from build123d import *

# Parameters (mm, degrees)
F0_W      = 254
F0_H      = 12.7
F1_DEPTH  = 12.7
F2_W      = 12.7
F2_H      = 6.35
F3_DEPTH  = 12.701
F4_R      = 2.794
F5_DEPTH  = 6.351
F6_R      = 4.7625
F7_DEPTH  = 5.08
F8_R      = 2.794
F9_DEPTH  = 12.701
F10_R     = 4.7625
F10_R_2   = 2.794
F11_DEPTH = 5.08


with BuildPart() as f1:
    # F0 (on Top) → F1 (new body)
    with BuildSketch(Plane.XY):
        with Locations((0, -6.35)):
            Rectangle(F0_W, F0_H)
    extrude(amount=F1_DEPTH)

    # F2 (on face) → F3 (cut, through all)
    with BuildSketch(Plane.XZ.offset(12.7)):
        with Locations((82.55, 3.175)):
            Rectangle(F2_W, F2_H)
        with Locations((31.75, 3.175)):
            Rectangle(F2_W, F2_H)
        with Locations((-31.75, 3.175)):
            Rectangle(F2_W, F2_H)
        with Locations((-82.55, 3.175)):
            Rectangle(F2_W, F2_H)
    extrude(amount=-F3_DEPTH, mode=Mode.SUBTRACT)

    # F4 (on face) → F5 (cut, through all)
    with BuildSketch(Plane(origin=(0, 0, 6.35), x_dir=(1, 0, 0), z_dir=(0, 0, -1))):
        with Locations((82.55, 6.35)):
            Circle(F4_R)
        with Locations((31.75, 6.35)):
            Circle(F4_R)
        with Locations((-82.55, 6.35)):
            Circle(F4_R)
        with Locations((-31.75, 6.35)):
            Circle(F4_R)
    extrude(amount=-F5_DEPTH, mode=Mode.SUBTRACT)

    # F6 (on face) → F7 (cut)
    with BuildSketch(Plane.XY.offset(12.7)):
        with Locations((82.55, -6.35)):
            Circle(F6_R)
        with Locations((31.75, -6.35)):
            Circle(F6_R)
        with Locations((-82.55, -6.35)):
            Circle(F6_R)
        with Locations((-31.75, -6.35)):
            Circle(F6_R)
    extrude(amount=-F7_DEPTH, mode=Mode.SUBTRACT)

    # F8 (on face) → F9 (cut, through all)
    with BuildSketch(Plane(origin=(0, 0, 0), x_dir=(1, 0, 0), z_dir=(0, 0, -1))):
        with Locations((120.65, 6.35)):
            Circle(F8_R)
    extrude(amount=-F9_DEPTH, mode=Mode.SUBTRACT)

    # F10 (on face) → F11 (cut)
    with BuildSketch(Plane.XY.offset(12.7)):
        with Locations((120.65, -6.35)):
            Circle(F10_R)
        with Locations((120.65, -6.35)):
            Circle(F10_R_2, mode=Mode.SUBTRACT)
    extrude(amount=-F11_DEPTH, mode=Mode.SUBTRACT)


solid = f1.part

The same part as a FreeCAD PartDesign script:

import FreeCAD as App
import Part
import Sketcher
Q = App.Units.Quantity


def add_polygon(sketch, points):
    """Adds a closed chain of lines whose ends are joined by coincident constraints."""
    first, n = sketch.GeometryCount, len(points)
    for a, b in zip(points, points[1:] + points[:1]):
        sketch.addGeometry(Part.LineSegment(App.Vector(*a, 0), App.Vector(*b, 0)), False)
    for i in range(n):
        sketch.addConstraint(Sketcher.Constraint("Coincident", first + i, 2, first + (i + 1) % n, 1))

doc = App.newDocument("Part")
body = doc.addObject("PartDesign::Body", "Body")

# Sketch on XY plane
sketch1 = body.newObject("Sketcher::SketchObject", "Sketch")
sketch1.AttachmentSupport = (doc.getObject("XY_Plane"), [""])
sketch1.MapMode = "FlatFace"
add_polygon(sketch1, [(-127, 0), (-127, -13), (127, -13), (127, 0)])  # lines 0-3
sketch1.addConstraint([
    Sketcher.Constraint("Vertical", 0),
    Sketcher.Constraint("Horizontal", 1),
    Sketcher.Constraint("Vertical", 2),
    Sketcher.Constraint("Horizontal", 3),
    Sketcher.Constraint("Symmetric", 2, 2, 3, 2, -1, 1),
    Sketcher.Constraint("DistanceX", 1, 1, 1, 2, Q("10 in")),
    Sketcher.Constraint("DistanceY", 0, 2, 0, 1, Q("0.5 in")),
])
pad1 = body.newObject("PartDesign::Pad", "Pad")
pad1.Profile = sketch1
pad1.Length = Q("0.5 in")

# Sketch on XZ plane
sketch2 = body.newObject("Sketcher::SketchObject", "Sketch001")
sketch2.AttachmentSupport = (doc.getObject("XZ_Plane"), [""])
sketch2.MapMode = "FlatFace"
sketch2.AttachmentOffset = App.Placement(App.Vector(0, 0, 0.5 * 25.4), App.Rotation())
add_polygon(sketch2, [(76, 6), (76, 0), (89, 0), (89, 6)])  # lines 0-3
add_polygon(sketch2, [(25, 6), (25, 0), (38, 0), (38, 6)])  # lines 4-7
add_polygon(sketch2, [(-38, 6), (-38, 0), (-25, 0), (-25, 6)])  # lines 8-11
add_polygon(sketch2, [(-89, 6), (-89, 0), (-76, 0), (-76, 6)])  # lines 12-15
sketch2.addConstraint([
    Sketcher.Constraint("Vertical", 0),
    Sketcher.Constraint("Horizontal", 1),
    Sketcher.Constraint("Vertical", 2),
    Sketcher.Constraint("Horizontal", 3),
    Sketcher.Constraint("Vertical", 4),
    Sketcher.Constraint("Horizontal", 5),
    Sketcher.Constraint("Vertical", 6),
    Sketcher.Constraint("Horizontal", 7),
    Sketcher.Constraint("Vertical", 8),
    Sketcher.Constraint("Horizontal", 9),
    Sketcher.Constraint("Vertical", 10),
    Sketcher.Constraint("Horizontal", 11),
    Sketcher.Constraint("Vertical", 12),
    Sketcher.Constraint("Horizontal", 13),
    Sketcher.Constraint("Vertical", 14),
    Sketcher.Constraint("Horizontal", 15),
    Sketcher.Constraint("Symmetric", 5, 2, 8, 2, -1, 1),
    Sketcher.Constraint("Symmetric", 1, 2, 12, 2, -1, 1),
    Sketcher.Constraint("Symmetric", 4, 2, 9, 2, -2),
    Sketcher.Constraint("Symmetric", 0, 2, 13, 2, -2),
    Sketcher.Constraint("Horizontal", 3, 2, 6, 2),
    Sketcher.Constraint("Horizontal", 7, 2, 10, 2),
    Sketcher.Constraint("Horizontal", 11, 2, 14, 2),
    Sketcher.Constraint("Equal", 3, 5),
    Sketcher.Constraint("DistanceX", 1, 1, 1, 2, Q("0.5 in")),
    Sketcher.Constraint("DistanceX", -1, 1, 0, 2, Q("3 in")),
    Sketcher.Constraint("DistanceX", -1, 1, 4, 2, Q("1 in")),
    Sketcher.Constraint("DistanceY", 0, 2, 0, 1, Q("0.25 in")),
])
pocket1 = body.newObject("PartDesign::Pocket", "Pocket")
pocket1.Profile = sketch2
pocket1.Type = "ThroughAll"

# Sketch on XY plane
sketch3 = body.newObject("Sketcher::SketchObject", "Sketch002")
sketch3.AttachmentSupport = (doc.getObject("XY_Plane"), [""])
sketch3.MapMode = "FlatFace"
sketch3.AttachmentOffset = App.Placement(App.Vector(0, 0, 0.25 * 25.4), App.Rotation())
sketch3.addGeometry([
    Part.Circle(App.Vector(82.5, -6.3, 0), App.Vector(0, 0, 1), 2.8),
    Part.Circle(App.Vector(31.8, -6.3, 0), App.Vector(0, 0, 1), 2.8),
    Part.Circle(App.Vector(-82.5, -6.3, 0), App.Vector(0, 0, 1), 2.8),
    Part.Circle(App.Vector(-31.8, -6.3, 0), App.Vector(0, 0, 1), 2.8),
], False)
sketch3.addConstraint([
    Sketcher.Constraint("Equal", 0, 1),
    Sketcher.Constraint("Equal", 1, 2),
    Sketcher.Constraint("Equal", 2, 3),
    Sketcher.Constraint("Symmetric", 0, 3, 2, 3, -2),
    Sketcher.Constraint("Symmetric", 1, 3, 3, 3, -2),
    Sketcher.Constraint("Horizontal", 0, 3, 1, 3),
    Sketcher.Constraint("Diameter", 0, Q("0.22 in")),
    Sketcher.Constraint("DistanceX", 1, 3, 0, 3, Q("2 in")),
    Sketcher.Constraint("DistanceX", 2, 3, 1, 3, Q("4.5 in")),
    Sketcher.Constraint("DistanceY", 0, 3, -1, 1, Q("0.25 in")),
])
pocket2 = body.newObject("PartDesign::Pocket", "Pocket001")
pocket2.Profile = sketch3
pocket2.Type = "ThroughAll"
pocket2.Reversed = True

# Sketch on XY plane
sketch4 = body.newObject("Sketcher::SketchObject", "Sketch003")
sketch4.AttachmentSupport = (doc.getObject("XY_Plane"), [""])
sketch4.MapMode = "FlatFace"
sketch4.AttachmentOffset = App.Placement(App.Vector(0, 0, 0.5 * 25.4), App.Rotation())
sketch4.addGeometry([
    Part.Circle(App.Vector(82.5, -6.3, 0), App.Vector(0, 0, 1), 4.8),
    Part.Circle(App.Vector(31.8, -6.3, 0), App.Vector(0, 0, 1), 4.8),
    Part.Circle(App.Vector(-82.5, -6.3, 0), App.Vector(0, 0, 1), 4.8),
    Part.Circle(App.Vector(-31.8, -6.3, 0), App.Vector(0, 0, 1), 4.8),
], False)
sketch4.addConstraint([
    Sketcher.Constraint("Equal", 0, 1),
    Sketcher.Constraint("Equal", 1, 2),
    Sketcher.Constraint("Equal", 2, 3),
    Sketcher.Constraint("Symmetric", 0, 3, 2, 3, -2),
    Sketcher.Constraint("Symmetric", 1, 3, 3, 3, -2),
    Sketcher.Constraint("Horizontal", 0, 3, 1, 3),
    Sketcher.Constraint("Diameter", 0, Q("0.375 in")),
    Sketcher.Constraint("DistanceX", 1, 3, 0, 3, Q("2 in")),
    Sketcher.Constraint("DistanceX", 2, 3, 1, 3, Q("4.5 in")),
    Sketcher.Constraint("DistanceY", 0, 3, -1, 1, Q("0.25 in")),
])
pocket3 = body.newObject("PartDesign::Pocket", "Pocket002")
pocket3.Profile = sketch4
pocket3.Length = Q("0.2 in")

# Sketch on XY plane
sketch5 = body.newObject("Sketcher::SketchObject", "Sketch004")
sketch5.AttachmentSupport = (doc.getObject("XY_Plane"), [""])
sketch5.MapMode = "FlatFace"
sketch5.addGeometry(Part.Circle(App.Vector(120.7, -6.3, 0), App.Vector(0, 0, 1), 2.8), False)
sketch5.addConstraint([
    Sketcher.Constraint("Diameter", 0, Q("0.22 in")),
    Sketcher.Constraint("DistanceX", -1, 1, 0, 3, Q("4.75 in")),
    Sketcher.Constraint("DistanceY", 0, 3, -1, 1, Q("0.25 in")),
])
pocket4 = body.newObject("PartDesign::Pocket", "Pocket003")
pocket4.Profile = sketch5
pocket4.Type = "ThroughAll"
pocket4.Reversed = True

# Sketch on XY plane
sketch6 = body.newObject("Sketcher::SketchObject", "Sketch005")
sketch6.AttachmentSupport = (doc.getObject("XY_Plane"), [""])
sketch6.MapMode = "FlatFace"
sketch6.AttachmentOffset = App.Placement(App.Vector(0, 0, 0.5 * 25.4), App.Rotation())
sketch6.addGeometry([
    Part.Circle(App.Vector(120.7, -6.3, 0), App.Vector(0, 0, 1), 4.8),
    Part.Circle(App.Vector(120.7, -6.3, 0), App.Vector(0, 0, 1), 2.8),
], False)
sketch6.addConstraint([
    Sketcher.Constraint("Coincident", 1, 3, 0, 3),
    Sketcher.Constraint("Diameter", 1, Q("0.22 in")),
    Sketcher.Constraint("Diameter", 0, Q("0.375 in")),
    Sketcher.Constraint("DistanceX", -1, 1, 0, 3, Q("4.75 in")),
    Sketcher.Constraint("DistanceY", 0, 3, -1, 1, Q("0.25 in")),
])
pocket5 = body.newObject("PartDesign::Pocket", "Pocket004")
pocket5.Profile = sketch6
pocket5.Length = Q("0.2 in")

doc.recompute()
